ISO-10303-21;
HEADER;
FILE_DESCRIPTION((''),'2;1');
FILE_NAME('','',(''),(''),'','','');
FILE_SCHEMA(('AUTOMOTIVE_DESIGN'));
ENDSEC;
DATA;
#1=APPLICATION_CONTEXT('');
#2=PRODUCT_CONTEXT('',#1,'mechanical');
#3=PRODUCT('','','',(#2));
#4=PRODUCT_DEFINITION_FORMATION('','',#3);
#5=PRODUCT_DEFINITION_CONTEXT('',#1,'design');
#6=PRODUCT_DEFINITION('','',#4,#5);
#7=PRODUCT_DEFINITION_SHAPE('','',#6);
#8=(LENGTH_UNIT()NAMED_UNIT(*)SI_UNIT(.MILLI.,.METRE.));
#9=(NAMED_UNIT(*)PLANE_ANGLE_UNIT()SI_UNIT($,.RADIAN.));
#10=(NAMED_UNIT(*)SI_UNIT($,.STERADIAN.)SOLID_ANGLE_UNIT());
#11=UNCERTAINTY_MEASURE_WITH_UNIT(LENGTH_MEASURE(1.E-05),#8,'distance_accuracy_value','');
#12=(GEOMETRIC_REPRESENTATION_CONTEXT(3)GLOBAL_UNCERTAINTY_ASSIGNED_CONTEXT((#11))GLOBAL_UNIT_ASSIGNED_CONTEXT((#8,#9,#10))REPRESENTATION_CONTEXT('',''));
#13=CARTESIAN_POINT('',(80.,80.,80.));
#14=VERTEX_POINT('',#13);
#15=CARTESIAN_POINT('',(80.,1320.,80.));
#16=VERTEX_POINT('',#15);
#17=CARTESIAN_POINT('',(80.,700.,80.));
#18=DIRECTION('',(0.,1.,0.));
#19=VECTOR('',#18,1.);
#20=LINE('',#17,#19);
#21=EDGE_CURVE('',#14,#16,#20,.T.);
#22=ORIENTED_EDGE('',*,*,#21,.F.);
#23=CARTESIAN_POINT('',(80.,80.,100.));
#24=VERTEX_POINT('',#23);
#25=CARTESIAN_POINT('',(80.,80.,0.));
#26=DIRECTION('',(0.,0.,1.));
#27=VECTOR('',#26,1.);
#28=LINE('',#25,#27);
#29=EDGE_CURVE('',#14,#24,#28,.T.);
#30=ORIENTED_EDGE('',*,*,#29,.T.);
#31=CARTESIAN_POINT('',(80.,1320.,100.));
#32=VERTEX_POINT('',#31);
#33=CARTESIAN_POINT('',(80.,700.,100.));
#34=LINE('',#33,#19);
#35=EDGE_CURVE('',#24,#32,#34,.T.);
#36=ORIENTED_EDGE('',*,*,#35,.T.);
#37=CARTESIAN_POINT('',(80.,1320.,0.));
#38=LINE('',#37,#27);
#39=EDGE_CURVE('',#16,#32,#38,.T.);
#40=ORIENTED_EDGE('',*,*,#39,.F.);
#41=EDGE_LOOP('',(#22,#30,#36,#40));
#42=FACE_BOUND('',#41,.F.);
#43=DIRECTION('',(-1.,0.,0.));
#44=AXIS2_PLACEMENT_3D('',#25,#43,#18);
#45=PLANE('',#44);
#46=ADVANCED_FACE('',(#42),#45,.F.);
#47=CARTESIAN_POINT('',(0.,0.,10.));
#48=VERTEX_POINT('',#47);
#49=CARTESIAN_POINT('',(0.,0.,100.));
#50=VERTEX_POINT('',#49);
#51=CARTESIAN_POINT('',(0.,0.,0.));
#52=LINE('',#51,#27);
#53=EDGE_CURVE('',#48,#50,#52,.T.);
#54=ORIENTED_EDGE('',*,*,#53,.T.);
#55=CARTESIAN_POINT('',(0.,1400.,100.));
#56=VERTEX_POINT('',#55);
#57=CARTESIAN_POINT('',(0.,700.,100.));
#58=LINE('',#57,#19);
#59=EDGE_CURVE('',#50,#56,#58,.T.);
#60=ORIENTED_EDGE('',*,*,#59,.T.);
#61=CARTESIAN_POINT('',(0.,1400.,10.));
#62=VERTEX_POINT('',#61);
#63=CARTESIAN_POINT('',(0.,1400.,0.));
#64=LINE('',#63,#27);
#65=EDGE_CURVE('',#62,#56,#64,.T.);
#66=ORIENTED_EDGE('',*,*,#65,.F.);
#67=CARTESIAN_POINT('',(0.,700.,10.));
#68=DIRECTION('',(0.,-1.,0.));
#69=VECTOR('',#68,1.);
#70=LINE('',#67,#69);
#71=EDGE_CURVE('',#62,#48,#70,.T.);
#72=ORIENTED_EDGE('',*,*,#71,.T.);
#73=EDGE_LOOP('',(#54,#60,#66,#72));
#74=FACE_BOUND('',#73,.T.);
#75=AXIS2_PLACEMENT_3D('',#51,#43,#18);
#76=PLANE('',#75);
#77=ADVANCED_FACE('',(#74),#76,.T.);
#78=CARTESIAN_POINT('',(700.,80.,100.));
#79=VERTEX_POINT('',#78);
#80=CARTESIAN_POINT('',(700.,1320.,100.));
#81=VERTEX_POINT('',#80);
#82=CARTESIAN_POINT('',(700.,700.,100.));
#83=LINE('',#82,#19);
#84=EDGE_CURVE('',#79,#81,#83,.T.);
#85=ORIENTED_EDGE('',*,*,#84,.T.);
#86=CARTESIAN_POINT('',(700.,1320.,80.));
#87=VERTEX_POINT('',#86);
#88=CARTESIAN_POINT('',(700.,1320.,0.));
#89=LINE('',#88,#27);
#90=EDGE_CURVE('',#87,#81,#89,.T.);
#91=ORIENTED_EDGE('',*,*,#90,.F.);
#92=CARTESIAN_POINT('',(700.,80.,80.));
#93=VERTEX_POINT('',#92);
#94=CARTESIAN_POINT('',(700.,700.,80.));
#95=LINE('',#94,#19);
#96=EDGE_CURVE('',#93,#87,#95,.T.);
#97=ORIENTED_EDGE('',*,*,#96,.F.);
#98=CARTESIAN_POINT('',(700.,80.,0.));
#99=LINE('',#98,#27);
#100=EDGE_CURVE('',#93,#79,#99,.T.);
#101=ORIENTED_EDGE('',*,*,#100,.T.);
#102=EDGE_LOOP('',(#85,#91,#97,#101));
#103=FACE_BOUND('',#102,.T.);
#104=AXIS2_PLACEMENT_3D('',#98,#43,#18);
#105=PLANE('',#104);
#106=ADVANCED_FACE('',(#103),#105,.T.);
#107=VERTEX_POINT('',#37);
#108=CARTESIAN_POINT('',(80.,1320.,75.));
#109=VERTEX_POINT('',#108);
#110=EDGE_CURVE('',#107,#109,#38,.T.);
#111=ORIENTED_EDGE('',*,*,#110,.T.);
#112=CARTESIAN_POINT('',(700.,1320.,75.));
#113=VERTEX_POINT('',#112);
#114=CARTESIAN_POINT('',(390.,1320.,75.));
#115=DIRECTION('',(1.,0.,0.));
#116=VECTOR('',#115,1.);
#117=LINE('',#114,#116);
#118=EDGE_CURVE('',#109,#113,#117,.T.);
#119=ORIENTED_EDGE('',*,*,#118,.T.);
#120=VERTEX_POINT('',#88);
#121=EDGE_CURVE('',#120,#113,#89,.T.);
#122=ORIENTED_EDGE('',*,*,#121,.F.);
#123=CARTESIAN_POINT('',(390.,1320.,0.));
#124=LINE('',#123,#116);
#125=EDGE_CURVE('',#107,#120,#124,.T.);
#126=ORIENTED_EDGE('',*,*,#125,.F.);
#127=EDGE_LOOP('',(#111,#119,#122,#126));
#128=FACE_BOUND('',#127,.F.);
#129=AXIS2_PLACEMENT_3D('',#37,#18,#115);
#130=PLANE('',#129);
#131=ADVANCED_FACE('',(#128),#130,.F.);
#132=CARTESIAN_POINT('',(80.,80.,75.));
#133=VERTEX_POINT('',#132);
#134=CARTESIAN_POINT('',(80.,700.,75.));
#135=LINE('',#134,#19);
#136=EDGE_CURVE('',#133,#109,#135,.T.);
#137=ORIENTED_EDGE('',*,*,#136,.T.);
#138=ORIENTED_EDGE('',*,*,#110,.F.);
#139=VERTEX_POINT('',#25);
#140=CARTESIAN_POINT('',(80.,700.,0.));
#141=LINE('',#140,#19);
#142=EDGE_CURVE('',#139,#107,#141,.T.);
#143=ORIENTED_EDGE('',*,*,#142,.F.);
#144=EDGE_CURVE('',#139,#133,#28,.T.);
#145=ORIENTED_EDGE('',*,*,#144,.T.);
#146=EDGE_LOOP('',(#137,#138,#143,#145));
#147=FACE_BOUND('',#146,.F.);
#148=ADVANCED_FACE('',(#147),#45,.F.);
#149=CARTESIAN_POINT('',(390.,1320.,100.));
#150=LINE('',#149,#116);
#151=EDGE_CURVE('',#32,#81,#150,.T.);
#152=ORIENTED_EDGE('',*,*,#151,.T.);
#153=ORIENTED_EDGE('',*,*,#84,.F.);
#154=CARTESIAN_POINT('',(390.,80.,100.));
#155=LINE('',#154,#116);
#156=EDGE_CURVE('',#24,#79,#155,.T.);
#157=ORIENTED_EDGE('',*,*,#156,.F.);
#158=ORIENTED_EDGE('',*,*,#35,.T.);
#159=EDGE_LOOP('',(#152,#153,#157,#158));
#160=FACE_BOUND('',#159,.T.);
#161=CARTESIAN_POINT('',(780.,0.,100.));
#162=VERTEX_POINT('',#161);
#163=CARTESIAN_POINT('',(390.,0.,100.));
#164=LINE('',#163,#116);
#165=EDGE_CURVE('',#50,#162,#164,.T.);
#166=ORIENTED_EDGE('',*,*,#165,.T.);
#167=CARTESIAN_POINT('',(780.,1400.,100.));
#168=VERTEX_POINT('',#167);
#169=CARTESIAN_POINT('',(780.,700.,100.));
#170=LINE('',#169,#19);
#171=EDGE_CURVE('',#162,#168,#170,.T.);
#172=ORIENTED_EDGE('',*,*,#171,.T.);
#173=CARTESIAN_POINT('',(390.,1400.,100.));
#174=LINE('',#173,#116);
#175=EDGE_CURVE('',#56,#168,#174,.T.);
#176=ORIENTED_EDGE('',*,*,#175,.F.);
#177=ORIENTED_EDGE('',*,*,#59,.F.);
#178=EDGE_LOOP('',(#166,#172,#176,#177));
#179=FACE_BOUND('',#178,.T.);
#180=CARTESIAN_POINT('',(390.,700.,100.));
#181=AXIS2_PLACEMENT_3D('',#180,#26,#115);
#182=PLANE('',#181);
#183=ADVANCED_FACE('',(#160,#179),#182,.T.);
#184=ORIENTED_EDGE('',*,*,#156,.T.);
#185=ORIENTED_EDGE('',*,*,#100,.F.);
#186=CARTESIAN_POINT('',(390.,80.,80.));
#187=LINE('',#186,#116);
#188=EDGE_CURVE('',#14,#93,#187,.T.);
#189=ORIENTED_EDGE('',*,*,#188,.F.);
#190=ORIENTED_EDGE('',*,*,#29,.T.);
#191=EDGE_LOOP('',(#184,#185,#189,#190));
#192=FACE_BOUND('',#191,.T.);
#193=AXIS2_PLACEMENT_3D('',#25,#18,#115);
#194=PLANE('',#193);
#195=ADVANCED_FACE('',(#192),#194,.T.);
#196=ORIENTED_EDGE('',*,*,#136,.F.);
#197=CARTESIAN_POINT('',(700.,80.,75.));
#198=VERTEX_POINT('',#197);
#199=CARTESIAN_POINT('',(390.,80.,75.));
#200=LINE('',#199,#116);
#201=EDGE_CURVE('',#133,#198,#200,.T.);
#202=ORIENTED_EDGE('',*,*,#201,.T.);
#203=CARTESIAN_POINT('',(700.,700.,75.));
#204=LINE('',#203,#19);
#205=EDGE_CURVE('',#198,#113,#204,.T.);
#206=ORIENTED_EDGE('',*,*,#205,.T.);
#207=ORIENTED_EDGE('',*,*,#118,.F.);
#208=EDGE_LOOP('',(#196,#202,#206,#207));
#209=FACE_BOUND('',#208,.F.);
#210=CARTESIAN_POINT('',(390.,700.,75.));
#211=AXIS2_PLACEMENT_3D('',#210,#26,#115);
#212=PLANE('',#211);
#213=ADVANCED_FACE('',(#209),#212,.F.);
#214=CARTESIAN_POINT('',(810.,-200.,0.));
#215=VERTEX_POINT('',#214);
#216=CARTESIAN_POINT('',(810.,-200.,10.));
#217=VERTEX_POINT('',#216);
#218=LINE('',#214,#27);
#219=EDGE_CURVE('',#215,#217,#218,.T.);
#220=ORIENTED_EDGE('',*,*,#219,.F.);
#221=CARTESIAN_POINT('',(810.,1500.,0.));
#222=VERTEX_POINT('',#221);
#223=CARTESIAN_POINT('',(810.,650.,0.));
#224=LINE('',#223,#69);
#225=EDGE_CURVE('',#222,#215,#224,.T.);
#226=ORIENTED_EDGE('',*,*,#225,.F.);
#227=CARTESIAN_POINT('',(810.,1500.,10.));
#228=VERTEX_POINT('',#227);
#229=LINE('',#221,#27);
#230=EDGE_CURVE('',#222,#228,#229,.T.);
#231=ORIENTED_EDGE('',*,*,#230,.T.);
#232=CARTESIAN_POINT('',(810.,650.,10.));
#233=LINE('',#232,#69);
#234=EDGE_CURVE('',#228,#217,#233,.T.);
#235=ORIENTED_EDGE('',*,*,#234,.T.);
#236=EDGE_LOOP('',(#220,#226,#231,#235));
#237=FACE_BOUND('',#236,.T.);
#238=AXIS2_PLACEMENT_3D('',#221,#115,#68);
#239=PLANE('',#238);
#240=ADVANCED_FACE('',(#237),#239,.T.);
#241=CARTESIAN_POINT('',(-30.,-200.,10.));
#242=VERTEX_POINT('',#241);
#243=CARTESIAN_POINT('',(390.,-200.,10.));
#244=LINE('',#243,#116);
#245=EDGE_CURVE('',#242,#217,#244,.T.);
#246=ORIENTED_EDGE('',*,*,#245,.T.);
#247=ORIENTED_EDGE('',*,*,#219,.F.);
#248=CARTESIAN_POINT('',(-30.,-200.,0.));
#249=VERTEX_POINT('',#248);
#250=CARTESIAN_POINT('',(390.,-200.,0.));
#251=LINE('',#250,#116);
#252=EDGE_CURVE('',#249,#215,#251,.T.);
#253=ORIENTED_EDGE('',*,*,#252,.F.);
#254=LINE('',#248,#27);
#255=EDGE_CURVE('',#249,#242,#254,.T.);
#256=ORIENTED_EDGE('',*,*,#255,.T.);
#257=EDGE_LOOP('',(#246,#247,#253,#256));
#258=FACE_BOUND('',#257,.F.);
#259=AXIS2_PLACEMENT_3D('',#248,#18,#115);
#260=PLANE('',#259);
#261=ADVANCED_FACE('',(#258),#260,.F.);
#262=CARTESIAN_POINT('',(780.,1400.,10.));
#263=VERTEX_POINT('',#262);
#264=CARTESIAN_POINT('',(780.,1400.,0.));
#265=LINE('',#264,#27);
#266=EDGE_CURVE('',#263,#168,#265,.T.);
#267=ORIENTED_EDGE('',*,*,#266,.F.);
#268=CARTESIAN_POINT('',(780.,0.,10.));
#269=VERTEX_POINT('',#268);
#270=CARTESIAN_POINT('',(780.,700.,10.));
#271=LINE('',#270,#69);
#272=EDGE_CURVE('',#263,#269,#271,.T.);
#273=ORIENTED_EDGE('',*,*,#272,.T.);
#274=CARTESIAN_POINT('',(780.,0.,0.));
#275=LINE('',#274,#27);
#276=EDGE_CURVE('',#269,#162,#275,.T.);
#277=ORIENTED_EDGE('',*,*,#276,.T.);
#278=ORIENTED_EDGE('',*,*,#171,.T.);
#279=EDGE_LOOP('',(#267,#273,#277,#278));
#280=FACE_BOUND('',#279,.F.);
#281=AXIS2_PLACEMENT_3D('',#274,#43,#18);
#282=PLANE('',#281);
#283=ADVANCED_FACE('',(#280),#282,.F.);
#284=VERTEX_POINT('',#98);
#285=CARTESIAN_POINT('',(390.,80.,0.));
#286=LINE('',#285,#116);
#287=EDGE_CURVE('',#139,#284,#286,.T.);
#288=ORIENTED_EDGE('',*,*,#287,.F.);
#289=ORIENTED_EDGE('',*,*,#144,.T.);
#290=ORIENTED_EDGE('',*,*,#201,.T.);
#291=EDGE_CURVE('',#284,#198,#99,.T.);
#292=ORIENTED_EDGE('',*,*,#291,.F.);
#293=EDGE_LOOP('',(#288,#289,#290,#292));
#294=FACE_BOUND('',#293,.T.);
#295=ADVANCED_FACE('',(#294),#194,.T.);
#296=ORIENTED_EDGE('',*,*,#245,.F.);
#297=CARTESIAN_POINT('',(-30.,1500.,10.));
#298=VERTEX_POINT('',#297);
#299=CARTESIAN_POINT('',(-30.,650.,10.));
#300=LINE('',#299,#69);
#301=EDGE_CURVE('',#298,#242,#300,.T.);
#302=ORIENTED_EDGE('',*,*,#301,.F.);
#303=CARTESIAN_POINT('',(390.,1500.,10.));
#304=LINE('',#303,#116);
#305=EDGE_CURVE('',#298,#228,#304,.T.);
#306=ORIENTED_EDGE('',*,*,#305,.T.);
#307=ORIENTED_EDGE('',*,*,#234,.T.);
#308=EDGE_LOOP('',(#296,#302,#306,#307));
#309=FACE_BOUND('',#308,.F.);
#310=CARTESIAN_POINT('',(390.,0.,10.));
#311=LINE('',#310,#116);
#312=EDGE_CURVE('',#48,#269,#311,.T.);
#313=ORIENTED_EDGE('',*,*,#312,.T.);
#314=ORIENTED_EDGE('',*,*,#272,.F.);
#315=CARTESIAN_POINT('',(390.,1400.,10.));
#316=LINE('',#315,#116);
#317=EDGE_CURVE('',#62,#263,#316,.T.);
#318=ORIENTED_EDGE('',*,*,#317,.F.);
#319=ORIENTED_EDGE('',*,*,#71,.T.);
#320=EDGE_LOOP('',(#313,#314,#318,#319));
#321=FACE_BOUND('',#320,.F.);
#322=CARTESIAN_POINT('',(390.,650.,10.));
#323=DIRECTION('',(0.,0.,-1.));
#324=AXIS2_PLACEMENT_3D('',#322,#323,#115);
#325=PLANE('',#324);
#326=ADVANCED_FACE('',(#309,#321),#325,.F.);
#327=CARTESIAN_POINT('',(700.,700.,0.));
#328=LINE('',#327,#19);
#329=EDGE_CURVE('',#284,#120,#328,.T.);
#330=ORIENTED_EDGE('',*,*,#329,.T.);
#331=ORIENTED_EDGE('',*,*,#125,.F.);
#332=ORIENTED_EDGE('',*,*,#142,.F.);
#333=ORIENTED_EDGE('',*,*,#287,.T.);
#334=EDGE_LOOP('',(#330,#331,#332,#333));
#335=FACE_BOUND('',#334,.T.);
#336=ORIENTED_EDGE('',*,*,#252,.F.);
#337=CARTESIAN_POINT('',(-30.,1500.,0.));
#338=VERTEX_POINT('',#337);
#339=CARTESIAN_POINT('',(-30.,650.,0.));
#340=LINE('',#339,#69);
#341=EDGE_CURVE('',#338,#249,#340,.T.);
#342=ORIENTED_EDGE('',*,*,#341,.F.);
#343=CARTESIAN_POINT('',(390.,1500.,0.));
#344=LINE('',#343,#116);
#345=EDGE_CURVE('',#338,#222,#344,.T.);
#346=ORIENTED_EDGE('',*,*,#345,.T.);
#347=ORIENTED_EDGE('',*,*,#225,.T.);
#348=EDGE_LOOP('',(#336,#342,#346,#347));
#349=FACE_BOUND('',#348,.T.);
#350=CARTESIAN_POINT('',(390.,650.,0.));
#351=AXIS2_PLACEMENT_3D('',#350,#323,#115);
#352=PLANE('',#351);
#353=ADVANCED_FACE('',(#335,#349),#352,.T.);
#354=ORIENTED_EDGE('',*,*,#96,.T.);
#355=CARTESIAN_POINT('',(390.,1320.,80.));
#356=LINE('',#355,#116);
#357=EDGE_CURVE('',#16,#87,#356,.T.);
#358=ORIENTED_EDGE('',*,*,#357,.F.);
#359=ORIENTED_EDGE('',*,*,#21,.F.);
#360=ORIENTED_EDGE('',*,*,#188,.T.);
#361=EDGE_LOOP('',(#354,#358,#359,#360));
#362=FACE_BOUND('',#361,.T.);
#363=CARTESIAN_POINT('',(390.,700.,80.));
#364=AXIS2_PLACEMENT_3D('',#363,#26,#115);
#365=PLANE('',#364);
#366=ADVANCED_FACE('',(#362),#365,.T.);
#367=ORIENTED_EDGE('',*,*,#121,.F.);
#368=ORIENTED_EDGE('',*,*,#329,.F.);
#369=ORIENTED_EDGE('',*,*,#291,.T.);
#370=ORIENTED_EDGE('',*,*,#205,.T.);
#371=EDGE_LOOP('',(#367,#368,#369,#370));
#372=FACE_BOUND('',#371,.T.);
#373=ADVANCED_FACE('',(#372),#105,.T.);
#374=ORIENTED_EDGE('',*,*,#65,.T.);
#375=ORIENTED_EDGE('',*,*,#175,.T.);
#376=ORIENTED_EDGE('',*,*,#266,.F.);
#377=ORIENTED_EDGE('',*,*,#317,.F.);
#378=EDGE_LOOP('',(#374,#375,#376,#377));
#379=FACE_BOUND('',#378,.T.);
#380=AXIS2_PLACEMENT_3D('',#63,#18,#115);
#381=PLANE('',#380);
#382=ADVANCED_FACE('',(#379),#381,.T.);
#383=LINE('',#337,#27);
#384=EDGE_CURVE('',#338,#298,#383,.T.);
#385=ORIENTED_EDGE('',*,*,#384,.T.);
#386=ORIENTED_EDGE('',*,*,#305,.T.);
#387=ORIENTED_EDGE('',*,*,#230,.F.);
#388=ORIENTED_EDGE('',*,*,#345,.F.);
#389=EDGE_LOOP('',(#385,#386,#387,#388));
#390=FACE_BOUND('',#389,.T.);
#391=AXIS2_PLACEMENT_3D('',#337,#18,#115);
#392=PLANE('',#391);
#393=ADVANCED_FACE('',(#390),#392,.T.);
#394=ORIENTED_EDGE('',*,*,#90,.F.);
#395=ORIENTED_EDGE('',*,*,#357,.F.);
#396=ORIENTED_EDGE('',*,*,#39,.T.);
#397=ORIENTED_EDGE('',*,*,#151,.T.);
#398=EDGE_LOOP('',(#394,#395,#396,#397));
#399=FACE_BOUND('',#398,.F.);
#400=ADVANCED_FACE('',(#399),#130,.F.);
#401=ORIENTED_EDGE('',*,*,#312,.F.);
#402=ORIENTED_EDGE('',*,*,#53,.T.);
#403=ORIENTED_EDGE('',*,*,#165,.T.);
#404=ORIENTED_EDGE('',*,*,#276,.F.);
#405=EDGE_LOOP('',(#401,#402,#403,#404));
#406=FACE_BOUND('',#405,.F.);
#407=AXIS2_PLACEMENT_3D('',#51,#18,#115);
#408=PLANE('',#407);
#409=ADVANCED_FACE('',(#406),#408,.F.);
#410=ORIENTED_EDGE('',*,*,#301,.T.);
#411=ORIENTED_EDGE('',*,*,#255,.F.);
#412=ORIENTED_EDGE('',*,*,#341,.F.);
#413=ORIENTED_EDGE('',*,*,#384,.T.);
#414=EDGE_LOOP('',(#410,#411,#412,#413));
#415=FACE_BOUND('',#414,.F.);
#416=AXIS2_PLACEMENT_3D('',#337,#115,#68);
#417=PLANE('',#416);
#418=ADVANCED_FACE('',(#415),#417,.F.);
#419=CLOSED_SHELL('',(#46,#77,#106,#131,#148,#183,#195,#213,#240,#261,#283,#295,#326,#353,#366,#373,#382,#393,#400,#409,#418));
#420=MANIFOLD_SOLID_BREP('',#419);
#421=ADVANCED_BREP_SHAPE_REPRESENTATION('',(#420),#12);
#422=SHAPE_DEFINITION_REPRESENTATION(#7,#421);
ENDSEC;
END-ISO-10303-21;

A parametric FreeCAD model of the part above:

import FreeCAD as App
import Part
import Sketcher


def add_polygon(sketch, points):
    """Adds a closed chain of lines whose ends are joined by coincident constraints."""
    first, n = sketch.GeometryCount, len(points)
    for a, b in zip(points, points[1:] + points[:1]):
        sketch.addGeometry(Part.LineSegment(App.Vector(*a, 0), App.Vector(*b, 0)), False)
    for i in range(n):
        sketch.addConstraint(Sketcher.Constraint("Coincident", first + i, 2, first + (i + 1) % n, 1))

doc = App.newDocument("Part")
body = doc.addObject("PartDesign::Body", "Body")

# Sketch on XY plane
sketch1 = body.newObject("Sketcher::SketchObject", "Sketch")
sketch1.AttachmentSupport = (doc.getObject("XY_Plane"), [""])
sketch1.MapMode = "FlatFace"
add_polygon(sketch1, [(0, 1400), (0, 0), (780, 0), (780, 1400)])  # lines 0-3
add_polygon(sketch1, [(700, 80), (80, 80), (80, 1320), (700, 1320)])  # lines 4-7
sketch1.addConstraint([
    Sketcher.Constraint("Vertical", 0),
    Sketcher.Constraint("Horizontal", 1),
    Sketcher.Constraint("Vertical", 2),
    Sketcher.Constraint("Horizontal", 3),
    Sketcher.Constraint("Horizontal", 4),
    Sketcher.Constraint("Vertical", 5),
    Sketcher.Constraint("Horizontal", 6),
    Sketcher.Constraint("Vertical", 7),
    Sketcher.Constraint("Coincident", 0, 2, -1, 1),
    Sketcher.Constraint("DistanceX", 1, 1, 1, 2, 780.0),
    Sketcher.Constraint("DistanceX", 4, 2, 4, 1, 620.0),
    Sketcher.Constraint("DistanceY", 0, 2, 0, 1, 1400.0),
    Sketcher.Constraint("DistanceY", 5, 1, 5, 2, 1240.0),
    Sketcher.Constraint("DistanceX", -1, 1, 4, 2, 80.0),
    Sketcher.Constraint("DistanceY", -1, 1, 4, 2, 80.0),
])
pad1 = body.newObject("PartDesign::Pad", "Pad")
pad1.Profile = sketch1
pad1.Length = 100

# Sketch on XY plane
sketch2 = body.newObject("Sketcher::SketchObject", "Sketch001")
sketch2.AttachmentSupport = (doc.getObject("XY_Plane"), [""])
sketch2.MapMode = "FlatFace"
add_polygon(sketch2, [(-30, -200), (-30, 1500), (810, 1500), (810, -200)])  # lines 0-3
add_polygon(sketch2, [(780, 1400), (0, 1400), (0, 0), (780, 0)])  # lines 4-7
sketch2.addConstraint([
    Sketcher.Constraint("Vertical", 0),
    Sketcher.Constraint("Horizontal", 1),
    Sketcher.Constraint("Vertical", 2),
    Sketcher.Constraint("Horizontal", 3),
    Sketcher.Constraint("Horizontal", 4),
    Sketcher.Constraint("Vertical", 5),
    Sketcher.Constraint("Horizontal", 6),
    Sketcher.Constraint("Vertical", 7),
    Sketcher.Constraint("Coincident", 5, 2, -1, 1),
    Sketcher.Constraint("DistanceX", 1, 1, 1, 2, 840.0),
    Sketcher.Constraint("DistanceX", 4, 2, 4, 1, 780.0),
    Sketcher.Constraint("DistanceY", 0, 1, 0, 2, 1700.0),
    Sketcher.Constraint("DistanceY", 5, 2, 5, 1, 1400.0),
    Sketcher.Constraint("DistanceX", 0, 2, -1, 1, 30.0),
    Sketcher.Constraint("DistanceY", -1, 1, 0, 2, 1500.0),
])
pad2 = body.newObject("PartDesign::Pad", "Pad001")
pad2.Profile = sketch2
pad2.Length = 10

# Sketch on XY plane
sketch3 = body.newObject("Sketcher::SketchObject", "Sketch002")
sketch3.AttachmentSupport = (doc.getObject("XY_Plane"), [""])
sketch3.MapMode = "FlatFace"
sketch3.AttachmentOffset = App.Placement(App.Vector(0, 0, 75), App.Rotation())
add_polygon(sketch3, [(80, 1320), (80, 80), (700, 80), (700, 1320)])  # lines 0-3
sketch3.addConstraint([
    Sketcher.Constraint("Vertical", 0),
    Sketcher.Constraint("Horizontal", 1),
    Sketcher.Constraint("Vertical", 2),
    Sketcher.Constraint("Horizontal", 3),
    Sketcher.Constraint("DistanceX", 1, 1, 1, 2, 620.0),
    Sketcher.Constraint("DistanceY", 0, 2, 0, 1, 1240.0),
    Sketcher.Constraint("DistanceX", -1, 1, 0, 2, 80.0),
    Sketcher.Constraint("DistanceY", -1, 1, 0, 2, 80.0),
])
pad3 = body.newObject("PartDesign::Pad", "Pad002")
pad3.Profile = sketch3
pad3.Length = 5

doc.recompute()
